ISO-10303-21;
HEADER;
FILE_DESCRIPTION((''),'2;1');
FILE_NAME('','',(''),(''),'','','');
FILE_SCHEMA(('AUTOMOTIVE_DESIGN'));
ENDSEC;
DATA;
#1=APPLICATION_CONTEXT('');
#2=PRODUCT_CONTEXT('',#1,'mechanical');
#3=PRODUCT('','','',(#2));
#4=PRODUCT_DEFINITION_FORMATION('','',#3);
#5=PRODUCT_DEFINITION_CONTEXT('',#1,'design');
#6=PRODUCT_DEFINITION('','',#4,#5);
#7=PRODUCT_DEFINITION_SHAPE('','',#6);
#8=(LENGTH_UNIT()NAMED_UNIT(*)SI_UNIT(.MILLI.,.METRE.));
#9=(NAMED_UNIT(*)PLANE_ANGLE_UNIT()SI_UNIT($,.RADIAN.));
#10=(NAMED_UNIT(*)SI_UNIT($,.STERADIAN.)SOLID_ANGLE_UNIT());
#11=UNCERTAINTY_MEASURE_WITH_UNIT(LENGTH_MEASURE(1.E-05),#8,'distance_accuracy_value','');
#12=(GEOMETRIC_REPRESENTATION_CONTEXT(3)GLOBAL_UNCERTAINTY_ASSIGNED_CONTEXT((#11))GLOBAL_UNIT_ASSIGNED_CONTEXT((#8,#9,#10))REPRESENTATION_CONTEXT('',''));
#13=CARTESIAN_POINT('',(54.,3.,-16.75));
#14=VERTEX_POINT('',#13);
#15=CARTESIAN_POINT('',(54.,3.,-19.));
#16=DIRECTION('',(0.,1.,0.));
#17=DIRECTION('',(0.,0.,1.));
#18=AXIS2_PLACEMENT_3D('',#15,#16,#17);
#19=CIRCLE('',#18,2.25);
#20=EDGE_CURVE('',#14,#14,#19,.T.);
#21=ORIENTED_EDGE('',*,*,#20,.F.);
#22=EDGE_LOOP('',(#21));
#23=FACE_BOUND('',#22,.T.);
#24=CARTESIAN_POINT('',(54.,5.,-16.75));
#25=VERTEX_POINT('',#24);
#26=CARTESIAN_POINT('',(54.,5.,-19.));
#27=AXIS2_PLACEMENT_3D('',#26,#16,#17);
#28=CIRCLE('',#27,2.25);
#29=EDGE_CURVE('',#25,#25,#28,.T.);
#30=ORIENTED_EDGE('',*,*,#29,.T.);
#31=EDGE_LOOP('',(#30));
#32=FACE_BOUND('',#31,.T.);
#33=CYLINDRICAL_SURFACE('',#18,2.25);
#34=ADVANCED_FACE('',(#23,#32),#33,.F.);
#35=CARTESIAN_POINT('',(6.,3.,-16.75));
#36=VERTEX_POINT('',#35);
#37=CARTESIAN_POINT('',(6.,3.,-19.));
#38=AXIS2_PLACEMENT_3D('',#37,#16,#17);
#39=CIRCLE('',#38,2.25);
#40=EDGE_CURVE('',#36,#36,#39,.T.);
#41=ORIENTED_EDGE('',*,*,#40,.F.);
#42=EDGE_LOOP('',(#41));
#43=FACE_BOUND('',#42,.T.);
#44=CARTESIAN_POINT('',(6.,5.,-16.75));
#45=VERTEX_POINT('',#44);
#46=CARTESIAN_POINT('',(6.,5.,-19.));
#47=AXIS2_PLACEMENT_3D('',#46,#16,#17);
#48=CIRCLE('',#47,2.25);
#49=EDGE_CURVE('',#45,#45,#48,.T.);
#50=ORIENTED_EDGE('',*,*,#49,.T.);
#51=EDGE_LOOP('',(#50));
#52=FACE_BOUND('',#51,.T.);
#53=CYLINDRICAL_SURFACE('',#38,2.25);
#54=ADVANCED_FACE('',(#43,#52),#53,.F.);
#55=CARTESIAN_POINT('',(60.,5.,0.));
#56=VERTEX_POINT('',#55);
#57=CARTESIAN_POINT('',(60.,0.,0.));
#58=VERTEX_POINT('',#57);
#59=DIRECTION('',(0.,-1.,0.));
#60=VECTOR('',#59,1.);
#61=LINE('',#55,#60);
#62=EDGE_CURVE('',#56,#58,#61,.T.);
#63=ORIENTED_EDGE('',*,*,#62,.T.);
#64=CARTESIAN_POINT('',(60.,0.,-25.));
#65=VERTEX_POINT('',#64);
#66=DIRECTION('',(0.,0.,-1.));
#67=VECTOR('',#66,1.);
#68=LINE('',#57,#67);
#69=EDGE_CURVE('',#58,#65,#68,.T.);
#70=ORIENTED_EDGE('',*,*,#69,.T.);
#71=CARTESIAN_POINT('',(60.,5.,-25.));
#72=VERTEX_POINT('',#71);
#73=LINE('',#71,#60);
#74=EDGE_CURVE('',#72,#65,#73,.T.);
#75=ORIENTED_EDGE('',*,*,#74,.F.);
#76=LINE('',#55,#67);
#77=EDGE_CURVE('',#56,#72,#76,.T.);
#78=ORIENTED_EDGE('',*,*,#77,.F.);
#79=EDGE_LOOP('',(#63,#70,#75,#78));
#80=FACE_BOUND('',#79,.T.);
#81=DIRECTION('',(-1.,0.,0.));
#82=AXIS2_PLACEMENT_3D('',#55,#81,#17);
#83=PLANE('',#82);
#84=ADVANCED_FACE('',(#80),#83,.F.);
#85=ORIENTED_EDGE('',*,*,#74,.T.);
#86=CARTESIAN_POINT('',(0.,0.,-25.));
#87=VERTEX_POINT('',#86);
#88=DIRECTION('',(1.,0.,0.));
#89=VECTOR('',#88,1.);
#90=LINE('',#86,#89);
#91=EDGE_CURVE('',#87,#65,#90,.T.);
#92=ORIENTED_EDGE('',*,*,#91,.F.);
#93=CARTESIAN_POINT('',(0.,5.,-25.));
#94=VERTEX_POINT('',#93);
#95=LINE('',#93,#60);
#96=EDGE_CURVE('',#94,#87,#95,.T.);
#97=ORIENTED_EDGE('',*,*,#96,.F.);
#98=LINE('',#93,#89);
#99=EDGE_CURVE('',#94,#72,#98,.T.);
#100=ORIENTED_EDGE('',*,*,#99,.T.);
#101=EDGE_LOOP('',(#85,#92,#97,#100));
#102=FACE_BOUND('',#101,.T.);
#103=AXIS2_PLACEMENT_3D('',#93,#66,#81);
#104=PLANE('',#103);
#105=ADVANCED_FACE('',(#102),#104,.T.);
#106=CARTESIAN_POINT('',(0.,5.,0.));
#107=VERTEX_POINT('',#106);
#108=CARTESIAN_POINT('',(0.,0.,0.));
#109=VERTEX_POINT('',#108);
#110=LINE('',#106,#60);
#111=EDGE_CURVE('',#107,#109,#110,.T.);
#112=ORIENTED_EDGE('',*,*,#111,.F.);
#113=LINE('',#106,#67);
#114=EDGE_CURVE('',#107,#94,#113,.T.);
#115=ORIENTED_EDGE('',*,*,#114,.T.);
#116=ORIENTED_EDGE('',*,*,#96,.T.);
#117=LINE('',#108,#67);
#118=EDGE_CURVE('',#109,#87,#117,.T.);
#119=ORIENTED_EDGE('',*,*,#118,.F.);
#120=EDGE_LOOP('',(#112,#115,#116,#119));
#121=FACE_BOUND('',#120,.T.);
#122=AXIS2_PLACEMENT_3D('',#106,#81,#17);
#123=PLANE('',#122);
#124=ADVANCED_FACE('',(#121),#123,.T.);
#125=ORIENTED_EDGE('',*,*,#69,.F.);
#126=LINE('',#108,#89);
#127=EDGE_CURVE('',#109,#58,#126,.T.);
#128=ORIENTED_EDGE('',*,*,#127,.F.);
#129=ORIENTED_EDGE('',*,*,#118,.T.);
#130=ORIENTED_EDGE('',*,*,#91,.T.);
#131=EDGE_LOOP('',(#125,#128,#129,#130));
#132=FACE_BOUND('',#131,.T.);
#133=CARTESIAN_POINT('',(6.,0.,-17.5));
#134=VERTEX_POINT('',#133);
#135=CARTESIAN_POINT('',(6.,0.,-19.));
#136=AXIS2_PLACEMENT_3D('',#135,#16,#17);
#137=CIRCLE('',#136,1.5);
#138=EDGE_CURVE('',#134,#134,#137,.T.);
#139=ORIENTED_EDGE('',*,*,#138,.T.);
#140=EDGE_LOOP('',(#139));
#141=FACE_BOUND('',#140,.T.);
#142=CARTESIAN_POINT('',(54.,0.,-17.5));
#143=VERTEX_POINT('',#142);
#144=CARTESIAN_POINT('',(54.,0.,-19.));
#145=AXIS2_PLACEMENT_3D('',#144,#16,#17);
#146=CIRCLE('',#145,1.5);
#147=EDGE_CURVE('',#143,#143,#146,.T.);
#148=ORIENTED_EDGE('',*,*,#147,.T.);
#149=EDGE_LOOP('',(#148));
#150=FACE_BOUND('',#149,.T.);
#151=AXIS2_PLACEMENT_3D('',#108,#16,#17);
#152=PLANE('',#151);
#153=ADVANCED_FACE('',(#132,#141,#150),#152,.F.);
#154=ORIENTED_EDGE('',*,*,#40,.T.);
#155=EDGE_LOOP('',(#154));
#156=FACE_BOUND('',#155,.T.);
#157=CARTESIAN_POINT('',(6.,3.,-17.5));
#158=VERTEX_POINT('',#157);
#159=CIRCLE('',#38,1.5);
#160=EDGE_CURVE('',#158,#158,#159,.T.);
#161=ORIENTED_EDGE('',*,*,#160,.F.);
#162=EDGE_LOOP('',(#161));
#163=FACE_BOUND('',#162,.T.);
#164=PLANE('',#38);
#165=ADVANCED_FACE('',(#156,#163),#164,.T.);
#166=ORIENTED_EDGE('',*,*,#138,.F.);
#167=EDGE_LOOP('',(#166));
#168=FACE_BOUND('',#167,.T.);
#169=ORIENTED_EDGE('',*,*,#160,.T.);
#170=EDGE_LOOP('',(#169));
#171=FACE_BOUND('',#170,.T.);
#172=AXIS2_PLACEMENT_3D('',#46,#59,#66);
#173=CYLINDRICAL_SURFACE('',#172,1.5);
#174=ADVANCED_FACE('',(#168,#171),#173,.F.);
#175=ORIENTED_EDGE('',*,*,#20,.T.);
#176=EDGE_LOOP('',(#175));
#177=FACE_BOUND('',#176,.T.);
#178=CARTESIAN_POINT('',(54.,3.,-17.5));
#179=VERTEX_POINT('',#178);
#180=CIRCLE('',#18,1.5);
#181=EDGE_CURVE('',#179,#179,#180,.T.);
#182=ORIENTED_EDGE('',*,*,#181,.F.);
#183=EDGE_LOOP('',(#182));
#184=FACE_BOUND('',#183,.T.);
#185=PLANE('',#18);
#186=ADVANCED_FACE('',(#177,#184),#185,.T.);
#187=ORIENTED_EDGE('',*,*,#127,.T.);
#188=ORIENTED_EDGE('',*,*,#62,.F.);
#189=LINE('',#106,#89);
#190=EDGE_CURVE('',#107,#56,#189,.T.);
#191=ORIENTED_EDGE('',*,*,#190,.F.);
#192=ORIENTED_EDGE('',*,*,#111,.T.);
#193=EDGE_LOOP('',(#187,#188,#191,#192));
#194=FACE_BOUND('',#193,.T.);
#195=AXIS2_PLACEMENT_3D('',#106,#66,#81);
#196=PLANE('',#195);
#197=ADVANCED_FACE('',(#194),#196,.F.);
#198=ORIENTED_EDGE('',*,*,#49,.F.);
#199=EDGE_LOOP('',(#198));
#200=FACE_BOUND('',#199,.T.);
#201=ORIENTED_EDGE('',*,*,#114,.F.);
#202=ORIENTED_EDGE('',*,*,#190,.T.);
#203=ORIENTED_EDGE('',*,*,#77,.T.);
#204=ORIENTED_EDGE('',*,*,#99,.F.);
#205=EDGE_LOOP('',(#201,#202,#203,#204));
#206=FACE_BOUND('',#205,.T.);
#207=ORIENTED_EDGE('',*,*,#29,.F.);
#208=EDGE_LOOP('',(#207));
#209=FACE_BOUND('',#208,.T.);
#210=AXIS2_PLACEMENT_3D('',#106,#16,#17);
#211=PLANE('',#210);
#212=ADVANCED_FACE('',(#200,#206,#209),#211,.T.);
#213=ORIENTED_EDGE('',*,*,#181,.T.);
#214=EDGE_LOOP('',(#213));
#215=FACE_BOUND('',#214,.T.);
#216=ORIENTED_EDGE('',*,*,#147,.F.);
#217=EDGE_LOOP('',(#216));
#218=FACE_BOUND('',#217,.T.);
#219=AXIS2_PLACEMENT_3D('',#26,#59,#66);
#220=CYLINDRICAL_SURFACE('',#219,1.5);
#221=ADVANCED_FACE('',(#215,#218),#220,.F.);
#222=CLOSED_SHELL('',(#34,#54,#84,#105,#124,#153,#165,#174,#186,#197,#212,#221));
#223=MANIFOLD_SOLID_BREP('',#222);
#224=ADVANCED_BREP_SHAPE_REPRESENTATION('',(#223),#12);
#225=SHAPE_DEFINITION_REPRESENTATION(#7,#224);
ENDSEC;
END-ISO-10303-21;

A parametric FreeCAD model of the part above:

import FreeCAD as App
import Part
import Sketcher

doc = App.newDocument("Part")
params = doc.addObject("Spreadsheet::Sheet", "Params")
for row, (alias, value) in enumerate([
    ("sketch1_diameter", "3 mm"),
    ("sketch1_width", "60 mm"),
    ("sketch1_height", "25 mm"),
    ("pad1_length", "5 mm"),
    ("sketch2_diameter", "4.5 mm"),
    ("pocket1_length", "2 mm"),
], start=1):
    params.set(f"A{row}", alias)
    params.set(f"B{row}", "=" + value)
    params.setAlias(f"B{row}", alias)

body = doc.addObject("PartDesign::Body", "Body")

# Sketch on XZ plane
sketch1 = body.newObject("Sketcher::SketchObject", "Sketch")
sketch1.AttachmentSupport = (doc.getObject("XZ_Plane"), [""])
sketch1.MapMode = "FlatFace"
sketch1.addGeometry(Part.LineSegment(App.Vector(0, -25, 0), App.Vector(0, 0, 0)), False)
sketch1.addGeometry(Part.LineSegment(App.Vector(0, 0, 0), App.Vector(60, 0, 0)), False)
sketch1.addGeometry(Part.LineSegment(App.Vector(60, 0, 0), App.Vector(60, -25, 0)), False)
sketch1.addGeometry(Part.LineSegment(App.Vector(60, -25, 0), App.Vector(0, -25, 0)), False)
sketch1.addGeometry(Part.Circle(App.Vector(6, -19, 0), App.Vector(0, 0, 1), 1.5), False)
sketch1.addGeometry(Part.Circle(App.Vector(54, -19, 0), App.Vector(0, 0, 1), 1.5), False)
sketch1.addConstraint(Sketcher.Constraint("Coincident", 0, 2, 1, 1))
sketch1.addConstraint(Sketcher.Constraint("Coincident", 1, 2, 2, 1))
sketch1.addConstraint(Sketcher.Constraint("Coincident", 2, 2, 3, 1))
sketch1.addConstraint(Sketcher.Constraint("Coincident", 3, 2, 0, 1))
sketch1.addConstraint(Sketcher.Constraint("Vertical", 0))
sketch1.addConstraint(Sketcher.Constraint("Horizontal", 1))
sketch1.addConstraint(Sketcher.Constraint("Vertical", 2))
sketch1.addConstraint(Sketcher.Constraint("Horizontal", 3))
sketch1.addConstraint(Sketcher.Constraint("Coincident", 0, 2, -1, 1))
sketch1.addConstraint(Sketcher.Constraint("Equal", 4, 5))
sketch1.addConstraint(Sketcher.Constraint("Horizontal", 4, 3, 5, 3))
sketch1.addConstraint(Sketcher.Constraint("Diameter", 4, 3.0))
sketch1.addConstraint(Sketcher.Constraint("DistanceX", 1, 1, 1, 2, 60.0))
sketch1.addConstraint(Sketcher.Constraint("DistanceY", 0, 1, 0, 2, 25.0))
sketch1.addConstraint(Sketcher.Constraint("DistanceX", -1, 1, 4, 3, 6.0))
sketch1.addConstraint(Sketcher.Constraint("DistanceY", 4, 3, -1, 1, 19.0))
sketch1.addConstraint(Sketcher.Constraint("DistanceX", -1, 1, 5, 3, 54.0))
sketch1.setExpression("Constraints[11]", "Params.sketch1_diameter")
sketch1.setExpression("Constraints[12]", "Params.sketch1_width")
sketch1.setExpression("Constraints[13]", "Params.sketch1_height")
pad1 = body.newObject("PartDesign::Pad", "Pad")
pad1.Profile = sketch1
pad1.setExpression("Length", "Params.pad1_length")
pad1.Reversed = True

# Sketch on XZ plane
sketch2 = body.newObject("Sketcher::SketchObject", "Sketch001")
sketch2.AttachmentSupport = (doc.getObject("XZ_Plane"), [""])
sketch2.MapMode = "FlatFace"
sketch2.AttachmentOffset = App.Placement(App.Vector(0, 0, -5), App.Rotation())
sketch2.addGeometry(Part.Circle(App.Vector(6, -19, 0), App.Vector(0, 0, 1), 2.2), False)
sketch2.addGeometry(Part.Circle(App.Vector(54, -19, 0), App.Vector(0, 0, 1), 2.2), False)
sketch2.addConstraint(Sketcher.Constraint("Equal", 0, 1))
sketch2.addConstraint(Sketcher.Constraint("Horizontal", 0, 3, 1, 3))
sketch2.addConstraint(Sketcher.Constraint("Diameter", 0, 4.5))
sketch2.addConstraint(Sketcher.Constraint("DistanceX", -1, 1, 0, 3, 6.0))
sketch2.addConstraint(Sketcher.Constraint("DistanceY", 0, 3, -1, 1, 19.0))
sketch2.addConstraint(Sketcher.Constraint("DistanceX", -1, 1, 1, 3, 54.0))
sketch2.setExpression("Constraints[2]", "Params.sketch2_diameter")
pocket1 = body.newObject("PartDesign::Pocket", "Pocket")
pocket1.Profile = sketch2
pocket1.setExpression("Length", "Params.pocket1_length")
pocket1.Reversed = True

doc.recompute()
